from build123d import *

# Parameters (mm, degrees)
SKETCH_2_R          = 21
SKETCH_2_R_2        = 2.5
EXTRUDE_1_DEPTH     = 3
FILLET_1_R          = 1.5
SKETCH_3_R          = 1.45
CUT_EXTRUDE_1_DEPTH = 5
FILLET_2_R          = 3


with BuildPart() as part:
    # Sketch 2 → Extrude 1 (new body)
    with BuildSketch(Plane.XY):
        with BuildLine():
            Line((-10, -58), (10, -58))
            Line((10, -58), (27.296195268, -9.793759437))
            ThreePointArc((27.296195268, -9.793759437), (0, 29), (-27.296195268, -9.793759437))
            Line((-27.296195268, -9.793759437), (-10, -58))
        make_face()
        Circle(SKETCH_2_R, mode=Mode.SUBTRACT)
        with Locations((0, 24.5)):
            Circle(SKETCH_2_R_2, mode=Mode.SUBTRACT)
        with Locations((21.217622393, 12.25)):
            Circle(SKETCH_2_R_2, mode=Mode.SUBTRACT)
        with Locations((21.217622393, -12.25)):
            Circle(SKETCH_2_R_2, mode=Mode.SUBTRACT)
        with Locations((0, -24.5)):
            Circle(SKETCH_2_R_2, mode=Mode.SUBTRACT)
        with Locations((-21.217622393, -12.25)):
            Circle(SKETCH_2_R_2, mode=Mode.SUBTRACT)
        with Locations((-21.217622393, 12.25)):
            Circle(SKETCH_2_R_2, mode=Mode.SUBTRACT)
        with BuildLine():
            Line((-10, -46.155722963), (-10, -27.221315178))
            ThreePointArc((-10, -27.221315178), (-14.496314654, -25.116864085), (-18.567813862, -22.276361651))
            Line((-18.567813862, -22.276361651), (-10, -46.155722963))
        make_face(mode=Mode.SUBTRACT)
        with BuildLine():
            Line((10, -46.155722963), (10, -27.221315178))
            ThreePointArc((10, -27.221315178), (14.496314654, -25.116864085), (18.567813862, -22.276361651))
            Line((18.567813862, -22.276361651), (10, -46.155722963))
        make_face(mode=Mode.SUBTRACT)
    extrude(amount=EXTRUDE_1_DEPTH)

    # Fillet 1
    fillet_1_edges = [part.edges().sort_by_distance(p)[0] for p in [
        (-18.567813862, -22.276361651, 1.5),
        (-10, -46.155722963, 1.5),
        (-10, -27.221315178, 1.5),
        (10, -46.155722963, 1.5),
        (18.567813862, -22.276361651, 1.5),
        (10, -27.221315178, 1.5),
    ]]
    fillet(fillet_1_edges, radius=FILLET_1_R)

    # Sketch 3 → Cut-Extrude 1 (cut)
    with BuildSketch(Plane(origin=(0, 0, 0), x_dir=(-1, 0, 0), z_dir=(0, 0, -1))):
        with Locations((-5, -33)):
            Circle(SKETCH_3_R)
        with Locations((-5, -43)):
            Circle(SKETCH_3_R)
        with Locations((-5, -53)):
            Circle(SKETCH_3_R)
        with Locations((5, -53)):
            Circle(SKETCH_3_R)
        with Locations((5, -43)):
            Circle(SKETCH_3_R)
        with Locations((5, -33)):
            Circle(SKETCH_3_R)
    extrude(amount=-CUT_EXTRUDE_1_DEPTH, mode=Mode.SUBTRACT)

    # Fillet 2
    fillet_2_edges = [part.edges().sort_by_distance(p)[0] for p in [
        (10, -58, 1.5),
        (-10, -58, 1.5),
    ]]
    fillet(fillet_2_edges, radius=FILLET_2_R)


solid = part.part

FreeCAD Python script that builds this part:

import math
import FreeCAD as App
import Part
import Sketcher
Q = App.Units.Quantity


def edges_at(feature, points):
    """Names of the edges that pass closest to the given points."""
    edges = feature.Shape.Edges
    near = lambda p: min(range(len(edges)), key=lambda i: edges[i].distToShape(Part.Vertex(*p))[0])
    return sorted({f"Edge{near(p) + 1}" for p in points})

doc = App.newDocument("Part")
body = doc.addObject("PartDesign::Body", "Body")

sketch1 = body.newObject("Sketcher::SketchObject", "Sketch")
sketch1.AttachmentSupport = (doc.getObject("XY_Plane"), [""])
sketch1.MapMode = "FlatFace"
sketch1.addGeometry(Part.LineSegment(App.Vector(-10, -58, 0), App.Vector(10, -58, 0)), False)
sketch1.addGeometry(Part.LineSegment(App.Vector(10, -58, 0), App.Vector(27.3, -9.8, 0)), False)
sketch1.addGeometry(Part.ArcOfCircle(Part.Circle(App.Vector(0, 0, 0), App.Vector(0, 0, 1), 29), math.radians(-20), math.radians(200)), False)
sketch1.addGeometry(Part.LineSegment(App.Vector(-27.3, -9.8, 0), App.Vector(-10, -58, 0)), False)
sketch1.addGeometry(Part.LineSegment(App.Vector(-10, -27.2, 0), App.Vector(-10, -46.2, 0)), False)
sketch1.addGeometry(Part.LineSegment(App.Vector(-10, -46.2, 0), App.Vector(-18.6, -22.3, 0)), False)
sketch1.addGeometry(Part.ArcOfCircle(Part.Circle(App.Vector(0, 0, 0), App.Vector(0, 0, 1), 29), math.radians(-129.81), math.radians(-110.17)), False)
sketch1.addGeometry(Part.Circle(App.Vector(-21.2, -12.2, 0), App.Vector(0, 0, 1), 2.5), False)
sketch1.addGeometry(Part.LineSegment(App.Vector(18.6, -22.3, 0), App.Vector(10, -46.2, 0)), False)
sketch1.addGeometry(Part.LineSegment(App.Vector(10, -46.2, 0), App.Vector(10, -27.2, 0)), False)
sketch1.addGeometry(Part.ArcOfCircle(Part.Circle(App.Vector(0, 0, 0), App.Vector(0, 0, 1), 29), math.radians(-69.83), math.radians(-50.19)), False)
sketch1.addGeometry(Part.Circle(App.Vector(0, -24.5, 0), App.Vector(0, 0, 1), 2.5), False)
sketch1.addGeometry(Part.Circle(App.Vector(21.2, -12.2, 0), App.Vector(0, 0, 1), 2.5), False)
sketch1.addGeometry(Part.Circle(App.Vector(-21.2, 12.2, 0), App.Vector(0, 0, 1), 2.5), False)
sketch1.addGeometry(Part.Circle(App.Vector(0, 0, 0), App.Vector(0, 0, 1), 21), False)
sketch1.addGeometry(Part.Circle(App.Vector(0, 24.5, 0), App.Vector(0, 0, 1), 2.5), False)
sketch1.addGeometry(Part.Circle(App.Vector(21.2, 12.2, 0), App.Vector(0, 0, 1), 2.5), False)
sketch1.addConstraint(Sketcher.Constraint("Coincident", 0, 2, 1, 1))
sketch1.addConstraint(Sketcher.Constraint("Tangent", 1, 2, 2, 1))
sketch1.addConstraint(Sketcher.Constraint("Tangent", 2, 2, 3, 1))
sketch1.addConstraint(Sketcher.Constraint("Coincident", 3, 2, 0, 1))
sketch1.addConstraint(Sketcher.Constraint("Coincident", 4, 2, 5, 1))
sketch1.addConstraint(Sketcher.Constraint("Coincident", 5, 2, 6, 1))
sketch1.addConstraint(Sketcher.Constraint("Coincident", 6, 2, 4, 1))
sketch1.addConstraint(Sketcher.Constraint("Coincident", 8, 2, 9, 1))
sketch1.addConstraint(Sketcher.Constraint("Coincident", 9, 2, 10, 1))
sketch1.addConstraint(Sketcher.Constraint("Coincident", 10, 2, 8, 1))
sketch1.addConstraint(Sketcher.Constraint("Horizontal", 0))
sketch1.addConstraint(Sketcher.Constraint("Vertical", 4))
sketch1.addConstraint(Sketcher.Constraint("Vertical", 9))
sketch1.addConstraint(Sketcher.Constraint("Coincident", 2, 3, -1, 1))
sketch1.addConstraint(Sketcher.Constraint("Coincident", 6, 3, -1, 1))
sketch1.addConstraint(Sketcher.Constraint("Coincident", 10, 3, -1, 1))
sketch1.addConstraint(Sketcher.Constraint("Coincident", 14, 3, -1, 1))
sketch1.addConstraint(Sketcher.Constraint("Equal", 2, 6))
sketch1.addConstraint(Sketcher.Constraint("Equal", 6, 10))
sketch1.addConstraint(Sketcher.Constraint("Equal", 7, 11))
sketch1.addConstraint(Sketcher.Constraint("Equal", 11, 12))
sketch1.addConstraint(Sketcher.Constraint("Equal", 12, 13))
sketch1.addConstraint(Sketcher.Constraint("Equal", 13, 15))
sketch1.addConstraint(Sketcher.Constraint("Equal", 15, 16))
sketch1.addConstraint(Sketcher.Constraint("Symmetric", 12, 3, 13, 3, -1, 1))
sketch1.addConstraint(Sketcher.Constraint("Symmetric", 11, 3, 15, 3, -1, 1))
sketch1.addConstraint(Sketcher.Constraint("Symmetric", 7, 3, 16, 3, -1, 1))
sketch1.addConstraint(Sketcher.Constraint("Symmetric", 7, 3, 12, 3, -2))
sketch1.addConstraint(Sketcher.Constraint("Symmetric", 4, 2, 8, 2, -2))
sketch1.addConstraint(Sketcher.Constraint("PointOnObject", 11, 3, -2))
sketch1.addConstraint(Sketcher.Constraint("Parallel", 3, 5))
sketch1.addConstraint(Sketcher.Constraint("Parallel", 1, 8))
sketch1.addConstraint(Sketcher.Constraint("Horizontal", 1, 2, 2, 2))
sketch1.addConstraint(Sketcher.Constraint("Vertical", 3, 2, 4, 2))
sketch1.addConstraint(Sketcher.Constraint("Diameter", 7, Q("5 mm")))
sketch1.addConstraint(Sketcher.Constraint("Diameter", 14, Q("42 mm")))
sketch1.addConstraint(Sketcher.Constraint("Radius", 2, Q("29 mm")))
sketch1.addConstraint(Sketcher.Constraint("DistanceX", 0, 1, 0, 2, Q("20 mm")))
sketch1.addConstraint(Sketcher.Constraint("DistanceY", 0, 2, -1, 1, Q("58 mm")))
sketch1.addConstraint(Sketcher.Constraint("DistanceY", 11, 3, -1, 1, Q("24.5 mm")))
sketch1.addConstraint(Sketcher.Constraint("DistanceY", 7, 3, 13, 3, Q("24.5 mm")))
sketch1.addConstraint(Sketcher.Constraint("Distance", 5, Q("25.36989 mm")))
sketch1.addConstraint(Sketcher.Constraint("DistanceX", 7, 3, 5, 2, Q("2.649809 mm")))
pad1 = body.newObject("PartDesign::Pad", "Pad")
pad1.Profile = sketch1
pad1.Length = 3
doc.recompute()

fillet = body.newObject("PartDesign::Fillet", "Fillet")
fillet.Base = (pad1, edges_at(pad1, [
    (-18.568, -22.276, 1.5),
    (-10, -46.156, 1.5),
    (-10, -27.221, 1.5),
    (10, -46.156, 1.5),
    (18.568, -22.276, 1.5),
    (10, -27.221, 1.5),
]))
fillet.Radius = 1.5

sketch2 = body.newObject("Sketcher::SketchObject", "Sketch001")
sketch2.AttachmentSupport = (doc.getObject("XY_Plane"), [""])
sketch2.MapMode = "FlatFace"
sketch2.addGeometry(Part.Circle(App.Vector(5, -33, 0), App.Vector(0, 0, 1), 1.4), False)
sketch2.addGeometry(Part.Circle(App.Vector(5, -43, 0), App.Vector(0, 0, 1), 1.4), False)
sketch2.addGeometry(Part.Circle(App.Vector(5, -53, 0), App.Vector(0, 0, 1), 1.4), False)
sketch2.addGeometry(Part.Circle(App.Vector(-5, -53, 0), App.Vector(0, 0, 1), 1.4), False)
sketch2.addGeometry(Part.Circle(App.Vector(-5, -43, 0), App.Vector(0, 0, 1), 1.4), False)
sketch2.addGeometry(Part.Circle(App.Vector(-5, -33, 0), App.Vector(0, 0, 1), 1.4), False)
sketch2.addConstraint(Sketcher.Constraint("Equal", 0, 1))
sketch2.addConstraint(Sketcher.Constraint("Equal", 1, 2))
sketch2.addConstraint(Sketcher.Constraint("Equal", 2, 3))
sketch2.addConstraint(Sketcher.Constraint("Equal", 3, 4))
sketch2.addConstraint(Sketcher.Constraint("Equal", 4, 5))
sketch2.addConstraint(Sketcher.Constraint("Symmetric", 2, 3, 3, 3, -2))
sketch2.addConstraint(Sketcher.Constraint("Symmetric", 1, 3, 4, 3, -2))
sketch2.addConstraint(Sketcher.Constraint("Symmetric", 0, 3, 5, 3, -2))
sketch2.addConstraint(Sketcher.Constraint("Vertical", 0, 3, 1, 3))
sketch2.addConstraint(Sketcher.Constraint("Vertical", 1, 3, 2, 3))
sketch2.addConstraint(Sketcher.Constraint("Diameter", 0, Q("2.9 mm")))
sketch2.addConstraint(Sketcher.Constraint("DistanceX", -1, 1, 0, 3, Q("5 mm")))
sketch2.addConstraint(Sketcher.Constraint("DistanceY", 0, 3, -1, 1, Q("33 mm")))
sketch2.addConstraint(Sketcher.Constraint("DistanceY", 1, 3, -1, 1, Q("43 mm")))
sketch2.addConstraint(Sketcher.Constraint("DistanceY", 2, 3, -1, 1, Q("53 mm")))
pocket1 = body.newObject("PartDesign::Pocket", "Pocket")
pocket1.Profile = sketch2
pocket1.Length = 5
pocket1.Reversed = True
doc.recompute()

fillet2 = body.newObject("PartDesign::Fillet", "Fillet001")
fillet2.Base = (pocket1, edges_at(pocket1, [(10, -58, 1.5), (-10, -58, 1.5)]))
fillet2.Radius = 3

doc.recompute()
